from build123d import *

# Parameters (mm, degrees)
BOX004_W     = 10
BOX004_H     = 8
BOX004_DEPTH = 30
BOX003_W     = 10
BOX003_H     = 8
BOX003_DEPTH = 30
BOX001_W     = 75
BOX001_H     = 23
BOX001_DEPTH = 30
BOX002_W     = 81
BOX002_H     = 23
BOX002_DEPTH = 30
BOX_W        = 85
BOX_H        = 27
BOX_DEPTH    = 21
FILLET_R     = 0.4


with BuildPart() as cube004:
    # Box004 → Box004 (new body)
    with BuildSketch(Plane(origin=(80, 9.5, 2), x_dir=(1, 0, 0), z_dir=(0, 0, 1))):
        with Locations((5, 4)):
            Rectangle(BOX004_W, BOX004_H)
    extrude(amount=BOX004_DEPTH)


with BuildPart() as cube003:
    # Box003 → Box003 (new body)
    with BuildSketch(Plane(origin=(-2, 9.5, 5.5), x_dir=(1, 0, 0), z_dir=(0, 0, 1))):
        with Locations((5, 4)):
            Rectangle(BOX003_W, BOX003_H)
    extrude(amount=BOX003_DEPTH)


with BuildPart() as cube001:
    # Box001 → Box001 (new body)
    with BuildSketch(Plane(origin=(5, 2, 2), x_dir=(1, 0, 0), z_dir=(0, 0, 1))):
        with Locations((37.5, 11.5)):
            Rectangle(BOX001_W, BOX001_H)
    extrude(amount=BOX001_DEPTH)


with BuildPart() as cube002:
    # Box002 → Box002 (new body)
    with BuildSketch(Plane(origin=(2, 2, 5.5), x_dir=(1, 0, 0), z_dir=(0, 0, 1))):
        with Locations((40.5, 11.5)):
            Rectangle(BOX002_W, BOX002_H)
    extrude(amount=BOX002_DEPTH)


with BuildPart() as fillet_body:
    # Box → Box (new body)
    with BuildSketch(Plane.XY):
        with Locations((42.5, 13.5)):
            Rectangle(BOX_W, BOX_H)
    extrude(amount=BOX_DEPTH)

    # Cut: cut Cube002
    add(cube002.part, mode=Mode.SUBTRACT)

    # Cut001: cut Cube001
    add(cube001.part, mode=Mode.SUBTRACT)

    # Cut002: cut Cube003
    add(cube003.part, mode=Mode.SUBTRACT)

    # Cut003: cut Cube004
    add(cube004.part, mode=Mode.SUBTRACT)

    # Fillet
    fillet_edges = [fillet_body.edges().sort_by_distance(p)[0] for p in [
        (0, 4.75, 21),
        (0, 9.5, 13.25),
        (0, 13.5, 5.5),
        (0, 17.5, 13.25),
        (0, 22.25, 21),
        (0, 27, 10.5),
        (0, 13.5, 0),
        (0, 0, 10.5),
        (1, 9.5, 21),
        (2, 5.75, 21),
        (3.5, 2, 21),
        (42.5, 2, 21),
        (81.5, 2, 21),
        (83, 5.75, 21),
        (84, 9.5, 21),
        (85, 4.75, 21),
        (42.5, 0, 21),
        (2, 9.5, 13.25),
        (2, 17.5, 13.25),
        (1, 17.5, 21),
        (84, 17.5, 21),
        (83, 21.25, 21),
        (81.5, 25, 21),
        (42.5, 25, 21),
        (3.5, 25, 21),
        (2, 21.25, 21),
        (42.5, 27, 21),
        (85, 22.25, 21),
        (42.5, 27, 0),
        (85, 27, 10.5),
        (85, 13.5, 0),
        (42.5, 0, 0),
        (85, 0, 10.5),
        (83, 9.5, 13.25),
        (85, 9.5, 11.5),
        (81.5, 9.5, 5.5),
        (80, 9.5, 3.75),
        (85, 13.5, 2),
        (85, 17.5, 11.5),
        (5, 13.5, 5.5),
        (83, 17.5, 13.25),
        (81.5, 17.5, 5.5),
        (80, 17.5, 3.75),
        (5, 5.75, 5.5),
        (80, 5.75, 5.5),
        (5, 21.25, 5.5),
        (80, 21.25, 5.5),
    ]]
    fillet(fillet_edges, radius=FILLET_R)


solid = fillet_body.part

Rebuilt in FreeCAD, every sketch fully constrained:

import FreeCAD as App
import Part
import Sketcher

V = App.Vector
Q = App.Units.Quantity


def edges_at(feature, points):
    """Names of the edges that pass closest to the given points."""
    edges = feature.Shape.Edges
    near = lambda p: min(range(len(edges)), key=lambda i: edges[i].distToShape(Part.Vertex(*p))[0])
    return sorted({f"Edge{near(p) + 1}" for p in points})

doc = App.newDocument("Part")
params = doc.addObject("Spreadsheet::Sheet", "Params")
for row, (alias, value) in enumerate([
    ("sketch1_width", "10 mm"),
    ("sketch1_height", "8 mm"),
    ("pad1_length", "30 mm"),
    ("sketch2_width", "10 mm"),
    ("sketch2_height", "8 mm"),
    ("pad2_length", "30 mm"),
    ("sketch3_width", "75 mm"),
    ("sketch3_height", "23 mm"),
    ("pad3_length", "30 mm"),
    ("sketch4_width", "81 mm"),
    ("sketch4_height", "23 mm"),
    ("pad4_length", "30 mm"),
    ("sketch5_width", "85 mm"),
    ("sketch5_height", "27 mm"),
    ("pad5_length", "21 mm"),
    ("fillet_radius", "0.4 mm"),
], start=1):
    params.set(f"A{row}", alias)
    params.set(f"B{row}", "=" + value)
    params.setAlias(f"B{row}", alias)

body = doc.addObject("PartDesign::Body", "Body")

sketch1 = body.newObject("Sketcher::SketchObject", "Sketch")
sketch1.AttachmentSupport = (doc.getObject("XY_Plane"), [""])
sketch1.MapMode = "FlatFace"
sketch1.AttachmentOffset = App.Placement(V(0, 0, 2), App.Rotation())
sketch1.addGeometry(Part.LineSegment(V(80, 18, 0), V(80, 10, 0)), False)
sketch1.addGeometry(Part.LineSegment(V(80, 10, 0), V(90, 10, 0)), False)
sketch1.addGeometry(Part.LineSegment(V(90, 10, 0), V(90, 18, 0)), False)
sketch1.addGeometry(Part.LineSegment(V(90, 18, 0), V(80, 18, 0)), False)
sketch1.addConstraint(Sketcher.Constraint("Coincident", 0, 2, 1, 1))
sketch1.addConstraint(Sketcher.Constraint("Coincident", 1, 2, 2, 1))
sketch1.addConstraint(Sketcher.Constraint("Coincident", 2, 2, 3, 1))
sketch1.addConstraint(Sketcher.Constraint("Coincident", 3, 2, 0, 1))
sketch1.addConstraint(Sketcher.Constraint("Vertical", 0))
sketch1.addConstraint(Sketcher.Constraint("Horizontal", 1))
sketch1.addConstraint(Sketcher.Constraint("Vertical", 2))
sketch1.addConstraint(Sketcher.Constraint("Horizontal", 3))
sketch1.addConstraint(Sketcher.Constraint("DistanceX", 1, 1, 1, 2, Q("10 mm")))
sketch1.addConstraint(Sketcher.Constraint("DistanceY", 0, 2, 0, 1, Q("8 mm")))
sketch1.addConstraint(Sketcher.Constraint("DistanceX", -1, 1, 0, 2, Q("80 mm")))
sketch1.addConstraint(Sketcher.Constraint("DistanceY", -1, 1, 0, 2, Q("9.5 mm")))
sketch1.setExpression("Constraints[8]", "Params.sketch1_width")
sketch1.setExpression("Constraints[9]", "Params.sketch1_height")
pad1 = body.newObject("PartDesign::Pad", "Pad")
pad1.Profile = sketch1
pad1.setExpression("Length", "Params.pad1_length")
body2 = doc.addObject("PartDesign::Body", "Body001")

sketch2 = body2.newObject("Sketcher::SketchObject", "Sketch001")
sketch2.AttachmentSupport = (doc.getObject("XY_Plane001"), [""])
sketch2.MapMode = "FlatFace"
sketch2.AttachmentOffset = App.Placement(V(0, 0, 5.5), App.Rotation())
sketch2.addGeometry(Part.LineSegment(V(-2, 18, 0), V(-2, 10, 0)), False)
sketch2.addGeometry(Part.LineSegment(V(-2, 10, 0), V(8, 10, 0)), False)
sketch2.addGeometry(Part.LineSegment(V(8, 10, 0), V(8, 18, 0)), False)
sketch2.addGeometry(Part.LineSegment(V(8, 18, 0), V(-2, 18, 0)), False)
sketch2.addConstraint(Sketcher.Constraint("Coincident", 0, 2, 1, 1))
sketch2.addConstraint(Sketcher.Constraint("Coincident", 1, 2, 2, 1))
sketch2.addConstraint(Sketcher.Constraint("Coincident", 2, 2, 3, 1))
sketch2.addConstraint(Sketcher.Constraint("Coincident", 3, 2, 0, 1))
sketch2.addConstraint(Sketcher.Constraint("Vertical", 0))
sketch2.addConstraint(Sketcher.Constraint("Horizontal", 1))
sketch2.addConstraint(Sketcher.Constraint("Vertical", 2))
sketch2.addConstraint(Sketcher.Constraint("Horizontal", 3))
sketch2.addConstraint(Sketcher.Constraint("DistanceX", 1, 1, 1, 2, Q("10 mm")))
sketch2.addConstraint(Sketcher.Constraint("DistanceY", 0, 2, 0, 1, Q("8 mm")))
sketch2.addConstraint(Sketcher.Constraint("DistanceX", 0, 2, -1, 1, Q("2 mm")))
sketch2.addConstraint(Sketcher.Constraint("DistanceY", -1, 1, 0, 2, Q("9.5 mm")))
sketch2.setExpression("Constraints[8]", "Params.sketch2_width")
sketch2.setExpression("Constraints[9]", "Params.sketch2_height")
pad2 = body2.newObject("PartDesign::Pad", "Pad001")
pad2.Profile = sketch2
pad2.setExpression("Length", "Params.pad2_length")
body3 = doc.addObject("PartDesign::Body", "Body002")

sketch3 = body3.newObject("Sketcher::SketchObject", "Sketch002")
sketch3.AttachmentSupport = (doc.getObject("XY_Plane002"), [""])
sketch3.MapMode = "FlatFace"
sketch3.AttachmentOffset = App.Placement(V(0, 0, 2), App.Rotation())
sketch3.addGeometry(Part.LineSegment(V(5, 25, 0), V(5, 2, 0)), False)
sketch3.addGeometry(Part.LineSegment(V(5, 2, 0), V(80, 2, 0)), False)
sketch3.addGeometry(Part.LineSegment(V(80, 2, 0), V(80, 25, 0)), False)
sketch3.addGeometry(Part.LineSegment(V(80, 25, 0), V(5, 25, 0)), False)
sketch3.addConstraint(Sketcher.Constraint("Coincident", 0, 2, 1, 1))
sketch3.addConstraint(Sketcher.Constraint("Coincident", 1, 2, 2, 1))
sketch3.addConstraint(Sketcher.Constraint("Coincident", 2, 2, 3, 1))
sketch3.addConstraint(Sketcher.Constraint("Coincident", 3, 2, 0, 1))
sketch3.addConstraint(Sketcher.Constraint("Vertical", 0))
sketch3.addConstraint(Sketcher.Constraint("Horizontal", 1))
sketch3.addConstraint(Sketcher.Constraint("Vertical", 2))
sketch3.addConstraint(Sketcher.Constraint("Horizontal", 3))
sketch3.addConstraint(Sketcher.Constraint("DistanceX", 1, 1, 1, 2, Q("75 mm")))
sketch3.addConstraint(Sketcher.Constraint("DistanceY", 0, 2, 0, 1, Q("23 mm")))
sketch3.addConstraint(Sketcher.Constraint("DistanceX", -1, 1, 0, 2, Q("5 mm")))
sketch3.addConstraint(Sketcher.Constraint("DistanceY", -1, 1, 0, 2, Q("2 mm")))
sketch3.setExpression("Constraints[8]", "Params.sketch3_width")
sketch3.setExpression("Constraints[9]", "Params.sketch3_height")
pad3 = body3.newObject("PartDesign::Pad", "Pad002")
pad3.Profile = sketch3
pad3.setExpression("Length", "Params.pad3_length")
body4 = doc.addObject("PartDesign::Body", "Body003")

sketch4 = body4.newObject("Sketcher::SketchObject", "Sketch003")
sketch4.AttachmentSupport = (doc.getObject("XY_Plane003"), [""])
sketch4.MapMode = "FlatFace"
sketch4.AttachmentOffset = App.Placement(V(0, 0, 5.5), App.Rotation())
sketch4.addGeometry(Part.LineSegment(V(2, 25, 0), V(2, 2, 0)), False)
sketch4.addGeometry(Part.LineSegment(V(2, 2, 0), V(83, 2, 0)), False)
sketch4.addGeometry(Part.LineSegment(V(83, 2, 0), V(83, 25, 0)), False)
sketch4.addGeometry(Part.LineSegment(V(83, 25, 0), V(2, 25, 0)), False)
sketch4.addConstraint(Sketcher.Constraint("Coincident", 0, 2, 1, 1))
sketch4.addConstraint(Sketcher.Constraint("Coincident", 1, 2, 2, 1))
sketch4.addConstraint(Sketcher.Constraint("Coincident", 2, 2, 3, 1))
sketch4.addConstraint(Sketcher.Constraint("Coincident", 3, 2, 0, 1))
sketch4.addConstraint(Sketcher.Constraint("Vertical", 0))
sketch4.addConstraint(Sketcher.Constraint("Horizontal", 1))
sketch4.addConstraint(Sketcher.Constraint("Vertical", 2))
sketch4.addConstraint(Sketcher.Constraint("Horizontal", 3))
sketch4.addConstraint(Sketcher.Constraint("DistanceX", 1, 1, 1, 2, Q("81 mm")))
sketch4.addConstraint(Sketcher.Constraint("DistanceY", 0, 2, 0, 1, Q("23 mm")))
sketch4.addConstraint(Sketcher.Constraint("DistanceX", -1, 1, 0, 2, Q("2 mm")))
sketch4.addConstraint(Sketcher.Constraint("DistanceY", -1, 1, 0, 2, Q("2 mm")))
sketch4.setExpression("Constraints[8]", "Params.sketch4_width")
sketch4.setExpression("Constraints[9]", "Params.sketch4_height")
pad4 = body4.newObject("PartDesign::Pad", "Pad003")
pad4.Profile = sketch4
pad4.setExpression("Length", "Params.pad4_length")
body5 = doc.addObject("PartDesign::Body", "Body004")

sketch5 = body5.newObject("Sketcher::SketchObject", "Sketch004")
sketch5.AttachmentSupport = (doc.getObject("XY_Plane004"), [""])
sketch5.MapMode = "FlatFace"
sketch5.addGeometry(Part.LineSegment(V(0, 27, 0), V(0, 0, 0)), False)
sketch5.addGeometry(Part.LineSegment(V(0, 0, 0), V(85, 0, 0)), False)
sketch5.addGeometry(Part.LineSegment(V(85, 0, 0), V(85, 27, 0)), False)
sketch5.addGeometry(Part.LineSegment(V(85, 27, 0), V(0, 27, 0)), False)
sketch5.addConstraint(Sketcher.Constraint("Coincident", 0, 2, 1, 1))
sketch5.addConstraint(Sketcher.Constraint("Coincident", 1, 2, 2, 1))
sketch5.addConstraint(Sketcher.Constraint("Coincident", 2, 2, 3, 1))
sketch5.addConstraint(Sketcher.Constraint("Coincident", 3, 2, 0, 1))
sketch5.addConstraint(Sketcher.Constraint("Vertical", 0))
sketch5.addConstraint(Sketcher.Constraint("Horizontal", 1))
sketch5.addConstraint(Sketcher.Constraint("Vertical", 2))
sketch5.addConstraint(Sketcher.Constraint("Horizontal", 3))
sketch5.addConstraint(Sketcher.Constraint("Coincident", 0, 2, -1, 1))
sketch5.addConstraint(Sketcher.Constraint("DistanceX", 1, 1, 1, 2, Q("85 mm")))
sketch5.addConstraint(Sketcher.Constraint("DistanceY", 0, 2, 0, 1, Q("27 mm")))
sketch5.setExpression("Constraints[9]", "Params.sketch5_width")
sketch5.setExpression("Constraints[10]", "Params.sketch5_height")
pad5 = body5.newObject("PartDesign::Pad", "Pad004")
pad5.Profile = sketch5
pad5.setExpression("Length", "Params.pad5_length")
doc.recompute()

boolean = body5.newObject("PartDesign::Boolean", "Boolean")
boolean.Type = "Cut"
boolean.addObjects([body4])
doc.recompute()

boolean2 = body5.newObject("PartDesign::Boolean", "Boolean001")
boolean2.Type = "Cut"
boolean2.addObjects([body3])
doc.recompute()

boolean3 = body5.newObject("PartDesign::Boolean", "Boolean002")
boolean3.Type = "Cut"
boolean3.addObjects([body2])
doc.recompute()

boolean4 = body5.newObject("PartDesign::Boolean", "Boolean003")
boolean4.Type = "Cut"
boolean4.addObjects([body])
doc.recompute()

fillet = body5.newObject("PartDesign::Fillet", "Fillet")
fillet.Base = (boolean4, edges_at(boolean4, [
    (0, 4.75, 21),
    (0, 9.5, 13.25),
    (0, 13.5, 5.5),
    (0, 17.5, 13.25),
    (0, 22.25, 21),
    (0, 27, 10.5),
    (0, 13.5, 0),
    (0, 0, 10.5),
    (1, 9.5, 21),
    (2, 5.75, 21),
    (42.5, 2, 21),
    (42.5, 2, 21),
    (42.5, 2, 21),
    (83, 5.75, 21),
    (84, 9.5, 21),
    (85, 4.75, 21),
    (42.5, 0, 21),
    (2, 9.5, 13.25),
    (2, 17.5, 13.25),
    (1, 17.5, 21),
    (84, 17.5, 21),
    (83, 21.25, 21),
    (42.5, 25, 21),
    (42.5, 25, 21),
    (42.5, 25, 21),
    (2, 21.25, 21),
    (42.5, 27, 21),
    (85, 22.25, 21),
    (42.5, 27, 0),
    (85, 27, 10.5),
    (85, 13.5, 0),
    (42.5, 0, 0),
    (85, 0, 10.5),
    (83, 9.5, 13.25),
    (85, 9.5, 11.5),
    (81.5, 9.5, 5.5),
    (80, 9.5, 3.75),
    (85, 13.5, 2),
    (85, 17.5, 11.5),
    (5, 13.5, 5.5),
    (83, 17.5, 13.25),
    (81.5, 17.5, 5.5),
    (80, 17.5, 3.75),
    (5, 13.5, 5.5),
    (80, 5.75, 5.5),
    (5, 13.5, 5.5),
    (80, 21.25, 5.5),
]))
fillet.setExpression("Radius", "Params.fillet_radius")

doc.recompute()
